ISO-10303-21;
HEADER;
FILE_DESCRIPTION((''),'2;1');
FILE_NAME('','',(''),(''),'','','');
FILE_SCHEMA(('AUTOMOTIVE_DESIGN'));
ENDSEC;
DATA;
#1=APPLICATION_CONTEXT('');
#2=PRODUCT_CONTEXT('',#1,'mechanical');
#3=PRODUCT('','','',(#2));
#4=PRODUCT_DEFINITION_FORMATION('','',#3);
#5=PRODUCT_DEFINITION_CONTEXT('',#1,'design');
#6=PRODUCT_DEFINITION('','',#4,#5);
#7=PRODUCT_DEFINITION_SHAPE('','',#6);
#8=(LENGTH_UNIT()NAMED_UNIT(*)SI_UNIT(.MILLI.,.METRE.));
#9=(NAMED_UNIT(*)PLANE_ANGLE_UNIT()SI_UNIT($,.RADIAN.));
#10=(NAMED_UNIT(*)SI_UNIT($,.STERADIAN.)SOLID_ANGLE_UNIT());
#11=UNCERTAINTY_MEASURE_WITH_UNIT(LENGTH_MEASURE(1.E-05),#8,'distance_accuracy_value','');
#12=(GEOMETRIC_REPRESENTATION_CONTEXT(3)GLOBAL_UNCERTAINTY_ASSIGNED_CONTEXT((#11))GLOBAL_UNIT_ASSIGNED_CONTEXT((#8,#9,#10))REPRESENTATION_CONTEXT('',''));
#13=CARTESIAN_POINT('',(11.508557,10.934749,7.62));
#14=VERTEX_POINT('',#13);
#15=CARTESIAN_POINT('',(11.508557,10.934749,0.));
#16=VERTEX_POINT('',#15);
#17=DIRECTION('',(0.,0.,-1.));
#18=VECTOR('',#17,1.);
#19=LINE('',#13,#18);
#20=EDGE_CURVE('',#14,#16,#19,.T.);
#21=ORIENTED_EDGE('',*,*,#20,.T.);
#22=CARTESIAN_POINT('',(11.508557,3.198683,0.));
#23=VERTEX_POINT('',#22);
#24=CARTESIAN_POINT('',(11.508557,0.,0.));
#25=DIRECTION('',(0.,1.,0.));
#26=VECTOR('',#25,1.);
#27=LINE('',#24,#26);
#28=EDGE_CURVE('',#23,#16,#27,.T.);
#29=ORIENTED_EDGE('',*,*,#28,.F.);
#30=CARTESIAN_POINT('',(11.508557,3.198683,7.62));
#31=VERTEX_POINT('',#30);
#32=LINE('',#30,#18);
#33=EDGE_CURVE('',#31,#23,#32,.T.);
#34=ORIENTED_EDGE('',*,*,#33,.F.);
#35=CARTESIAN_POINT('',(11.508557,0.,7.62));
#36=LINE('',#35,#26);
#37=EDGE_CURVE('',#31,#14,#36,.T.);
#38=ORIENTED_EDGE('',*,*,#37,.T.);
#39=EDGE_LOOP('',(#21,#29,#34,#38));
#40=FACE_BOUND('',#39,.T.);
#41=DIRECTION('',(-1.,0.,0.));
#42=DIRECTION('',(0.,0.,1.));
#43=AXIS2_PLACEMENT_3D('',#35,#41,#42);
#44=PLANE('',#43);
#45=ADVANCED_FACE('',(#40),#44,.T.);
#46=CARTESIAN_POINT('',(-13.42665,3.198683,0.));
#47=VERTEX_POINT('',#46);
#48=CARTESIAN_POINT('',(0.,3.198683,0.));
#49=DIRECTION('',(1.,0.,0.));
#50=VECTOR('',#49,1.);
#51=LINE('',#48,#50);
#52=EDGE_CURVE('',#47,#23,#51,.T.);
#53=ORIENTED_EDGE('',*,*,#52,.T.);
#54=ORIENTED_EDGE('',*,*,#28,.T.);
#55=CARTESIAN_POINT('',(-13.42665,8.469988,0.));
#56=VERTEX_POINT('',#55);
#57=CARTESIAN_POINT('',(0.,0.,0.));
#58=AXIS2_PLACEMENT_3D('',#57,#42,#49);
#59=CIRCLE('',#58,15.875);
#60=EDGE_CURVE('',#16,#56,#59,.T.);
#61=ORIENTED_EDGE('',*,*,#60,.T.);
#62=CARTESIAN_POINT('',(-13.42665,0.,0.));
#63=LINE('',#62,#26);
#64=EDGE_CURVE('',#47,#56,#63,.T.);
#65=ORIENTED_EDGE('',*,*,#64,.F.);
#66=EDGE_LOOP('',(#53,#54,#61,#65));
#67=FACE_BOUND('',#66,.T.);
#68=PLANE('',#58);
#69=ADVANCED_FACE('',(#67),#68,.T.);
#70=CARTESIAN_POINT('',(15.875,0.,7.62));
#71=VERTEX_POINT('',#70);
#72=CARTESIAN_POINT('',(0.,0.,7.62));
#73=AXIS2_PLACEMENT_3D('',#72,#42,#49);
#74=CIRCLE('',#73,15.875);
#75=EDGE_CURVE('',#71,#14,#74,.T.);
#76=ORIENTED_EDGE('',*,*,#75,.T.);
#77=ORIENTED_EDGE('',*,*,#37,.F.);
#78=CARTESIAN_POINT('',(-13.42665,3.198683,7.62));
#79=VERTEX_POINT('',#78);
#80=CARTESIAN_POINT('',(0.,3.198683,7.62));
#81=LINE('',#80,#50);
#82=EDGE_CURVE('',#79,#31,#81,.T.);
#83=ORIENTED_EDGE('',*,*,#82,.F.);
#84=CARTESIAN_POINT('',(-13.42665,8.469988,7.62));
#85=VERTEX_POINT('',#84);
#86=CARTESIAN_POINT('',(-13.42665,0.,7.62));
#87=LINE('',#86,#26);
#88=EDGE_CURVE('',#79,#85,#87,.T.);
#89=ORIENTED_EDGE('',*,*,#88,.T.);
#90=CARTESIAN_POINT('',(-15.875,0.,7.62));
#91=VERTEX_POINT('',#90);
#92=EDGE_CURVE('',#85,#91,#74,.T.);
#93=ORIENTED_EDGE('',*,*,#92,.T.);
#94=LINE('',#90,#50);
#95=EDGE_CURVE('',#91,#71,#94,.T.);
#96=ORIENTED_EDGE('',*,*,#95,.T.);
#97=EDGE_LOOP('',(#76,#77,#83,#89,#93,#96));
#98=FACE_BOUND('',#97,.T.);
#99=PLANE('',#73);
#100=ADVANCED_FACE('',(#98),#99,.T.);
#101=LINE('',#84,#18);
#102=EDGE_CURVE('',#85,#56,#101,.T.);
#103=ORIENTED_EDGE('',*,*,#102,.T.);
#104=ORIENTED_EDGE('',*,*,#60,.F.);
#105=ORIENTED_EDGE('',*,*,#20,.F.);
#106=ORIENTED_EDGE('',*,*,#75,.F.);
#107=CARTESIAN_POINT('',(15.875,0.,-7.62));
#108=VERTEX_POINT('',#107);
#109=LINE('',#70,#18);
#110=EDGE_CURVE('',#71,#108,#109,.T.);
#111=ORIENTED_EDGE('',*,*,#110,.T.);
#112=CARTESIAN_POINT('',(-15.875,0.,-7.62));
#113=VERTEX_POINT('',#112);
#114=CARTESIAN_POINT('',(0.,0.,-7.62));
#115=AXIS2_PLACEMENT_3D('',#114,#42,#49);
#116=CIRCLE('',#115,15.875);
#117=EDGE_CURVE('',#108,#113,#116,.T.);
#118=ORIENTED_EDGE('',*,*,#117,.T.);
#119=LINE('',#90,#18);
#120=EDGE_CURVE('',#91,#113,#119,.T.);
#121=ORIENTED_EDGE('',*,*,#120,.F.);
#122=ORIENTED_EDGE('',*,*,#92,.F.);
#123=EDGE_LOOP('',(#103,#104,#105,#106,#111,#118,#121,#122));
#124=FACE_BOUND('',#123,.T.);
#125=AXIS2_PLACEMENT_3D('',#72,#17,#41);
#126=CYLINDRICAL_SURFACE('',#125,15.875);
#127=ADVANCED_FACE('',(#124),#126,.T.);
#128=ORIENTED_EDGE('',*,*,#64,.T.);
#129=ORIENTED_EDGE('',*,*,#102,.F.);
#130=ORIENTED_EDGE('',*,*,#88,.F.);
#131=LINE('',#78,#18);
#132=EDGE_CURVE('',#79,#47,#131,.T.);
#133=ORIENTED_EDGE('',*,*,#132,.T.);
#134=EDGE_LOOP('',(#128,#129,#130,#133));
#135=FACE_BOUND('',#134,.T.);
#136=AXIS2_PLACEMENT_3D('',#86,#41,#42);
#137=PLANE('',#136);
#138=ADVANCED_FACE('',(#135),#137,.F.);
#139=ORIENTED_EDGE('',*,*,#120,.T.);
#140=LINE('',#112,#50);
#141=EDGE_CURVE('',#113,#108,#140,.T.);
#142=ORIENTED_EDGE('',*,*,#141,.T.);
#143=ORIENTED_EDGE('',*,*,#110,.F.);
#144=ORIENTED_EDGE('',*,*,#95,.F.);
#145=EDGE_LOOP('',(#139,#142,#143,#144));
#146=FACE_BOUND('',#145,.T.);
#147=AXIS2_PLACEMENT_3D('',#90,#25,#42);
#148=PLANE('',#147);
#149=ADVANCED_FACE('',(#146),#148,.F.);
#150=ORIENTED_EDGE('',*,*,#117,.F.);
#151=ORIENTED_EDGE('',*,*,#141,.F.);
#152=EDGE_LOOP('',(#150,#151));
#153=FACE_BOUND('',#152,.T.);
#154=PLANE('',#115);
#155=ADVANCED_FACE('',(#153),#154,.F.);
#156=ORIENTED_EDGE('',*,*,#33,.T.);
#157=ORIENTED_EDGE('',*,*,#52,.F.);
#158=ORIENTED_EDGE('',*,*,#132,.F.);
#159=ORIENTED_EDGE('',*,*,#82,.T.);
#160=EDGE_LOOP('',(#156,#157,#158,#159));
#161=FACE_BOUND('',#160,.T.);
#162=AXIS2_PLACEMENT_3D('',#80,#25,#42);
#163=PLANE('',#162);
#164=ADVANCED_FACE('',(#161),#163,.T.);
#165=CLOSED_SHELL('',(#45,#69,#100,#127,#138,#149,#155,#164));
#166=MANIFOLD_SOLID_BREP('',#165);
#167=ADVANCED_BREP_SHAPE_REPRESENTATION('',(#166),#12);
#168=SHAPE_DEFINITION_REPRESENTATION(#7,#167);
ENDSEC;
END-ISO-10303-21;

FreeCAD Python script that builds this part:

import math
import FreeCAD as App
import Part
import Sketcher
Q = App.Units.Quantity

doc = App.newDocument("Part")
params = doc.addObject("Spreadsheet::Sheet", "Params")
for row, (alias, value) in enumerate([
    ("sketch1_radius", "0.625 in"),
    ("pad1_length", "0.6 in"),
    ("sketch2_radius", "0.625 in"),
], start=1):
    params.set(f"A{row}", alias)
    params.set(f"B{row}", "=" + value)
    params.setAlias(f"B{row}", alias)

body = doc.addObject("PartDesign::Body", "Body")

# Sketch on XY plane
sketch1 = doc.addObject("Sketcher::SketchObject", "Sketch")
body.addObject(sketch1)
sketch1.AttachmentSupport = (doc.XY_Plane, [""])
sketch1.MapMode = "FlatFace"
sketch1.addGeometry(Part.LineSegment(App.Vector(-16, 0, 0), App.Vector(16, 0, 0)), False)
sketch1.addGeometry(Part.ArcOfCircle(Part.Circle(App.Vector(0, 0, 0), App.Vector(0, 0, 1), 16), math.radians(0), math.radians(180)), False)
sketch1.addConstraint(Sketcher.Constraint("Coincident", 0, 1, 1, 2))
sketch1.addConstraint(Sketcher.Constraint("Coincident", 1, 1, 0, 2))
sketch1.addConstraint(Sketcher.Constraint("Horizontal", 0))
sketch1.addConstraint(Sketcher.Constraint("Coincident", 1, 3, -1, 1))
sketch1.addConstraint(Sketcher.Constraint("PointOnObject", 0, 1, -1))
sketch1.addConstraint(Sketcher.Constraint("Radius", 1, Q("0.625 in")))
sketch1.setExpression("Constraints[5]", "Params.sketch1_radius")
pad1 = doc.addObject("PartDesign::Pad", "Pad")
body.addObject(pad1)
pad1.Profile = sketch1
pad1.setExpression("Length", "Params.pad1_length")
pad1.Midplane = True

# Sketch on XY plane
sketch2 = doc.addObject("Sketcher::SketchObject", "Sketch001")
body.addObject(sketch2)
sketch2.AttachmentSupport = (doc.XY_Plane, [""])
sketch2.MapMode = "FlatFace"
sketch2.addGeometry(Part.LineSegment(App.Vector(-13, 8, 0), App.Vector(-13, 3, 0)), False)
sketch2.addGeometry(Part.LineSegment(App.Vector(-13, 3, 0), App.Vector(12, 3, 0)), False)
sketch2.addGeometry(Part.LineSegment(App.Vector(12, 3, 0), App.Vector(12, 11, 0)), False)
sketch2.addGeometry(Part.ArcOfCircle(Part.Circle(App.Vector(0, 0, 0), App.Vector(0, 0, 1), 16), math.radians(44), math.radians(148)), False)
sketch2.addConstraint(Sketcher.Constraint("Coincident", 0, 2, 1, 1))
sketch2.addConstraint(Sketcher.Constraint("Coincident", 1, 2, 2, 1))
sketch2.addConstraint(Sketcher.Constraint("Coincident", 2, 2, 3, 1))
sketch2.addConstraint(Sketcher.Constraint("Coincident", 3, 2, 0, 1))
sketch2.addConstraint(Sketcher.Constraint("Vertical", 0))
sketch2.addConstraint(Sketcher.Constraint("Horizontal", 1))
sketch2.addConstraint(Sketcher.Constraint("Vertical", 2))
sketch2.addConstraint(Sketcher.Constraint("Coincident", 3, 3, -1, 1))
sketch2.addConstraint(Sketcher.Constraint("Radius", 3, Q("0.625 in")))
sketch2.addConstraint(Sketcher.Constraint("DistanceX", 1, 1, 1, 2, 24.935208))
sketch2.addConstraint(Sketcher.Constraint("DistanceY", 0, 2, 0, 1, 5.271305))
sketch2.addConstraint(Sketcher.Constraint("DistanceY", 2, 1, 2, 2, 7.736066))
sketch2.setExpression("Constraints[8]", "Params.sketch2_radius")
pocket1 = doc.addObject("PartDesign::Pocket", "Pocket")
body.addObject(pocket1)
pocket1.Profile = sketch2
pocket1.Type = "ThroughAll"
pocket1.Reversed = True

doc.recompute()
